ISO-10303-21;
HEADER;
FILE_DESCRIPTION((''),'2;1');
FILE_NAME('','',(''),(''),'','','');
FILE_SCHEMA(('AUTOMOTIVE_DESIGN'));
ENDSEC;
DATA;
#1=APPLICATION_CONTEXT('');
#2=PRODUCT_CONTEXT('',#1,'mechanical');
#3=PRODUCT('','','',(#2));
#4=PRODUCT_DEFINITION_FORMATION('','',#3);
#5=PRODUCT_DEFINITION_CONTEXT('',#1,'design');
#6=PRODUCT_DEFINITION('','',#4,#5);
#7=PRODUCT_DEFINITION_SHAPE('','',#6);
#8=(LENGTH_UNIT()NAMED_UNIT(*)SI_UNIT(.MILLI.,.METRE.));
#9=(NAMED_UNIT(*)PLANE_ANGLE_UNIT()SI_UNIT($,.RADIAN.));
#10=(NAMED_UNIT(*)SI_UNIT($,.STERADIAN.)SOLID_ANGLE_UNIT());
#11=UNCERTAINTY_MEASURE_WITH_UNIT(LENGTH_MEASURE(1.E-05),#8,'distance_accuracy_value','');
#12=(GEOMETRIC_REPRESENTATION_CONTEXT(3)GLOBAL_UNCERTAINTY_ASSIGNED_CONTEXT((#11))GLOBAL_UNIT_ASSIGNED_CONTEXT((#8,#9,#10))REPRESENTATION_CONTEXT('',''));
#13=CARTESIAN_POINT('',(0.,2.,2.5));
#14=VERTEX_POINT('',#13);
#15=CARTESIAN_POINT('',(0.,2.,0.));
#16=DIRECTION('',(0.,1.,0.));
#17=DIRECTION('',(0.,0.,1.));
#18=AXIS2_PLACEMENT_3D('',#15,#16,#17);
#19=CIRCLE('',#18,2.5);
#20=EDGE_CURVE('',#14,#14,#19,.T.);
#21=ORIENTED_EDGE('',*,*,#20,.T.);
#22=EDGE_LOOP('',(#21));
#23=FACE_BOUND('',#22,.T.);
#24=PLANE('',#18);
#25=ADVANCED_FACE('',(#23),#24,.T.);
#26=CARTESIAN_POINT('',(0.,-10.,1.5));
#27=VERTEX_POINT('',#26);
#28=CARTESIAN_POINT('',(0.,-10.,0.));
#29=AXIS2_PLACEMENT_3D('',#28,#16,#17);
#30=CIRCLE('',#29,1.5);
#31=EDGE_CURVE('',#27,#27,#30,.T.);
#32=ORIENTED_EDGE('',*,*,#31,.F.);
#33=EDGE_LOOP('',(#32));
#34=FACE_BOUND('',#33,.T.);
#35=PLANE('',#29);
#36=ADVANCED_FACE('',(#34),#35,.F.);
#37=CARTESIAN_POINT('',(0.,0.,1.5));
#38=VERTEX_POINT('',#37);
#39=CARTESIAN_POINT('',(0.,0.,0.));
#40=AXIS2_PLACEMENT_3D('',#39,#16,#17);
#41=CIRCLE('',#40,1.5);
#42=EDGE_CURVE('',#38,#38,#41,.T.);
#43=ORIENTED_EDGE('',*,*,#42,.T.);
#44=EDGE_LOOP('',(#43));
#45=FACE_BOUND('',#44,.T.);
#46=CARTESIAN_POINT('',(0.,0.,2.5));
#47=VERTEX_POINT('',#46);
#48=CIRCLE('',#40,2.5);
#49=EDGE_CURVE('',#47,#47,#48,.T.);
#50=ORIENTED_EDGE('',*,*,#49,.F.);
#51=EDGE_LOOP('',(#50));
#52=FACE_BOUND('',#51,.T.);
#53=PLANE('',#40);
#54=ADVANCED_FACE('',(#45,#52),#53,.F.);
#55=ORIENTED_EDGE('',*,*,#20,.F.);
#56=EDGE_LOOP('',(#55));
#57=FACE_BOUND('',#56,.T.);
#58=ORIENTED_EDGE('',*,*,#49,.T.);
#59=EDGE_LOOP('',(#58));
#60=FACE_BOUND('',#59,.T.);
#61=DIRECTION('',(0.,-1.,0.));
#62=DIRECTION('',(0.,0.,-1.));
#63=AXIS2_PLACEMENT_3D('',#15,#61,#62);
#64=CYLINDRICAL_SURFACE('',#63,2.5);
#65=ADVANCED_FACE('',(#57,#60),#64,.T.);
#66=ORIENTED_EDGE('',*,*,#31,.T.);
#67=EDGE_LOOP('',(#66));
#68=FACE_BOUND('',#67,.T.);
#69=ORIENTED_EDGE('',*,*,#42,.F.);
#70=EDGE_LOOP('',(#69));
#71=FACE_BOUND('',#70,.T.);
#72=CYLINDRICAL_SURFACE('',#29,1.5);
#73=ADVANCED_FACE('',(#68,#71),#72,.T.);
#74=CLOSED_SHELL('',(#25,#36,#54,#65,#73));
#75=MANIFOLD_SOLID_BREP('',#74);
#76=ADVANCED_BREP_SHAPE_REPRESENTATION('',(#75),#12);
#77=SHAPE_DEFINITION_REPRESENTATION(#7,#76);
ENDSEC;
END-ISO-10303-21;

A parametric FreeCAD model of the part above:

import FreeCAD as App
import Part
import Sketcher
Q = App.Units.Quantity

doc = App.newDocument("Part")
body = doc.addObject("PartDesign::Body", "Body")

# Sketch on XZ plane
sketch1 = body.newObject("Sketcher::SketchObject", "Sketch")
sketch1.AttachmentSupport = (doc.getObject("XZ_Plane"), [""])
sketch1.MapMode = "FlatFace"
sketch1.addGeometry(Part.Circle(App.Vector(0, 0, 0), App.Vector(0, 0, 1), 2.5), False)
sketch1.addConstraint([
    Sketcher.Constraint("Coincident", 0, 3, -1, 1),
    Sketcher.Constraint("Diameter", 0, Q("5 mm")),
])
pad1 = body.newObject("PartDesign::Pad", "Pad")
pad1.Profile = sketch1
pad1.Length = 2
pad1.Reversed = True

# Sketch on XZ plane
sketch2 = body.newObject("Sketcher::SketchObject", "Sketch001")
sketch2.AttachmentSupport = (doc.getObject("XZ_Plane"), [""])
sketch2.MapMode = "FlatFace"
sketch2.addGeometry(Part.Circle(App.Vector(0, 0, 0), App.Vector(0, 0, 1), 1.5), False)
sketch2.addConstraint([
    Sketcher.Constraint("Coincident", 0, 3, -1, 1),
    Sketcher.Constraint("Diameter", 0, Q("3 mm")),
])
pad2 = body.newObject("PartDesign::Pad", "Pad001")
pad2.Profile = sketch2
pad2.Length = 10

doc.recompute()
